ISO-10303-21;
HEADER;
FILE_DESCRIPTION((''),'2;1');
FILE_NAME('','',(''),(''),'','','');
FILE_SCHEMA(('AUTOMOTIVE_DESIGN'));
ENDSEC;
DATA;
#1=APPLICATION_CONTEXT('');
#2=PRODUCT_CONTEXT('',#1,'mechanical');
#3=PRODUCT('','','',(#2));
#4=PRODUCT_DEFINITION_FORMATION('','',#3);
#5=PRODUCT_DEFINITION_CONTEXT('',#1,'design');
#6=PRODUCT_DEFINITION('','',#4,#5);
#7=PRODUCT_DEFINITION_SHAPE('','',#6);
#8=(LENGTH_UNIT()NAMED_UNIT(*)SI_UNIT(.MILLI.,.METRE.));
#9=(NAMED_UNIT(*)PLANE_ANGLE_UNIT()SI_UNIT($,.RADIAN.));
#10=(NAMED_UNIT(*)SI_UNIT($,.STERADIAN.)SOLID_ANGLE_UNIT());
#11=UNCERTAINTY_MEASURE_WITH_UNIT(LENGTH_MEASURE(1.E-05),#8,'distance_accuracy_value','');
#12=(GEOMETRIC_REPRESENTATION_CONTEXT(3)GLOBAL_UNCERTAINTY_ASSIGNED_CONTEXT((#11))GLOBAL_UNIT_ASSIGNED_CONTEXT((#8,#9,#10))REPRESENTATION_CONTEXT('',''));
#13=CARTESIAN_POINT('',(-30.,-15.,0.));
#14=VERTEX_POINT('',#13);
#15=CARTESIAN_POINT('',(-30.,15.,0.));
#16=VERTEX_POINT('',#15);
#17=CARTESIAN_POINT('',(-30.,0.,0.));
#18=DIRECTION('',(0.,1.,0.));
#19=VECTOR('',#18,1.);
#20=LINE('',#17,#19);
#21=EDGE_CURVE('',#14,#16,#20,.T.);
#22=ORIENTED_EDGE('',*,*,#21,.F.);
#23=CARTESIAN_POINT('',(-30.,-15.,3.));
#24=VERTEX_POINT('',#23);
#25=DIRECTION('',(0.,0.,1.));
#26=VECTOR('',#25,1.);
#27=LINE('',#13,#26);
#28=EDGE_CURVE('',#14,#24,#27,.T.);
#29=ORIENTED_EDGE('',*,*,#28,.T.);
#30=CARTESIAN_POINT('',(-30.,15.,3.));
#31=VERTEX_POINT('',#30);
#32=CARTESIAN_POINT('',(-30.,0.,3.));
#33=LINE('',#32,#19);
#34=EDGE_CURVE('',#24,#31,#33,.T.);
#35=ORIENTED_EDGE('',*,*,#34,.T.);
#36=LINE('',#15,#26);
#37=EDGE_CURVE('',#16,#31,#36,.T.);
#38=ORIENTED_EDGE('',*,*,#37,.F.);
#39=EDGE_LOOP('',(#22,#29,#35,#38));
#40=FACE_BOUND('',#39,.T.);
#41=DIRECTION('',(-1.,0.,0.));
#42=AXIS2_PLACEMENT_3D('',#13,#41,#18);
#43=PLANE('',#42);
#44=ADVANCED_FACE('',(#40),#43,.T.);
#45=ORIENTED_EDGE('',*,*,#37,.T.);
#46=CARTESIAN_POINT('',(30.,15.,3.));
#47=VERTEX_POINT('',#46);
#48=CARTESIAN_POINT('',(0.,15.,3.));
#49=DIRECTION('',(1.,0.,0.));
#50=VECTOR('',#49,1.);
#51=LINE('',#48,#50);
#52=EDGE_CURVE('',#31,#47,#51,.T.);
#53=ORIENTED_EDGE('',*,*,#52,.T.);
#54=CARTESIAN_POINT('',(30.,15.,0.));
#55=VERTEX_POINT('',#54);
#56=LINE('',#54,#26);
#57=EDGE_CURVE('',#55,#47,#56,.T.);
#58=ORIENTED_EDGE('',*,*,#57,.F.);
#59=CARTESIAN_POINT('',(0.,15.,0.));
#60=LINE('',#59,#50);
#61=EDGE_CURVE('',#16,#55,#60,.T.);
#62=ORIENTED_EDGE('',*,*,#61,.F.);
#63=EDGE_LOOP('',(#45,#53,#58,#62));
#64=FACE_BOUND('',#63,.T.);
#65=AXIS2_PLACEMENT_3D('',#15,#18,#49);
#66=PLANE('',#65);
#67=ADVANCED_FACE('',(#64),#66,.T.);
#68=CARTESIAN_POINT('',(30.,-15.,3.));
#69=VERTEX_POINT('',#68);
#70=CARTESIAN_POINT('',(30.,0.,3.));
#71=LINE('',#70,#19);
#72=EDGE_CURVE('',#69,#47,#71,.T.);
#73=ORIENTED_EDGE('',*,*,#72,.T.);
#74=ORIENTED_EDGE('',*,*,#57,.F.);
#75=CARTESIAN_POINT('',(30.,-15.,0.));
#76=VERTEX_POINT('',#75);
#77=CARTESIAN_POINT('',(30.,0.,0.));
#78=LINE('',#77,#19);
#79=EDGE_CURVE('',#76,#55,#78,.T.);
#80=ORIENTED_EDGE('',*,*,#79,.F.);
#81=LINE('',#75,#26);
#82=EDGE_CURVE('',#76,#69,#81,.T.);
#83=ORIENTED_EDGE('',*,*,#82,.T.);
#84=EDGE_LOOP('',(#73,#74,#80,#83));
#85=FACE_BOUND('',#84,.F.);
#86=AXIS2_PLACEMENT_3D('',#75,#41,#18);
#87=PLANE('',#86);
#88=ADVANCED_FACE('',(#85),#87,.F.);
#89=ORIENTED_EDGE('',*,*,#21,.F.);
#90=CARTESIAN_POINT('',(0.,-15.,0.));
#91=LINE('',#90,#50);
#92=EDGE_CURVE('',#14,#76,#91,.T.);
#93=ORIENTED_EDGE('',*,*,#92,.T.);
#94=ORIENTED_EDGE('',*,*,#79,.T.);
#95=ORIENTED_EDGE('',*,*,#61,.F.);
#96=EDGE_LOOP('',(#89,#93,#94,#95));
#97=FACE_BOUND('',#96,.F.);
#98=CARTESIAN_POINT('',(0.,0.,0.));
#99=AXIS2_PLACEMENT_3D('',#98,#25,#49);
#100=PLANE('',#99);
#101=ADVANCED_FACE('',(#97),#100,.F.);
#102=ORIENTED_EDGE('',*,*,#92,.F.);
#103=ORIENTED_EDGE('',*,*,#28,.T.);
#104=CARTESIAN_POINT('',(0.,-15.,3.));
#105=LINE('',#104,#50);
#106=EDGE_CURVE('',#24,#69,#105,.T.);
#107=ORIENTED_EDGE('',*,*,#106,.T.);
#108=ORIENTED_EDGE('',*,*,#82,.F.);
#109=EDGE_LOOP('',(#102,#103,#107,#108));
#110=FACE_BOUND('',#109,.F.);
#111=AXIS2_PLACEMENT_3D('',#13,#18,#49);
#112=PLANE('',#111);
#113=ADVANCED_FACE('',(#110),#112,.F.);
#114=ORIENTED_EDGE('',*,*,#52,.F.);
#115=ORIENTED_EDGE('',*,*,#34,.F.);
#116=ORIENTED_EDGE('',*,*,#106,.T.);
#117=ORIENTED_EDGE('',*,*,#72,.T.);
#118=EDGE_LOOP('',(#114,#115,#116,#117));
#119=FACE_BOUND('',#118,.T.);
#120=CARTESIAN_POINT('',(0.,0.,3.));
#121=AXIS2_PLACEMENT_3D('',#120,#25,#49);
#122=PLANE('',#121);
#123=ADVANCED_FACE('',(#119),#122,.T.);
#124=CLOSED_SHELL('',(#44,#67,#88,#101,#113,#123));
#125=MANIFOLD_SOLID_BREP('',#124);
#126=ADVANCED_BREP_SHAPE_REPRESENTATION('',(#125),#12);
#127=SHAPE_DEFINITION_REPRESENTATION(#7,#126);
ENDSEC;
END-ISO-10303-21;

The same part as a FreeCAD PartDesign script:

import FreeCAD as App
import Part
import Sketcher
from FreeCAD import Vector
Q = App.Units.Quantity


def add_polygon(sketch, points):
    """Adds a closed chain of lines whose ends are joined by coincident constraints."""
    first, n = sketch.GeometryCount, len(points)
    for a, b in zip(points, points[1:] + points[:1]):
        sketch.addGeometry(Part.LineSegment(App.Vector(*a, 0), App.Vector(*b, 0)), False)
    for i in range(n):
        sketch.addConstraint(Sketcher.Constraint("Coincident", first + i, 2, first + (i + 1) % n, 1))

doc = App.newDocument("Part")
body = doc.addObject("PartDesign::Body", "Body")

sketch1 = body.newObject("Sketcher::SketchObject", "Sketch")
sketch1.AttachmentSupport = (doc.getObject("XY_Plane"), [""])
sketch1.MapMode = "FlatFace"
add_polygon(sketch1, [(-30, 15), (-30, -15), (30, -15), (30, 15)])
sketch1.addConstraint([
    Sketcher.Constraint("Vertical", 0),
    Sketcher.Constraint("Horizontal", 1),
    Sketcher.Constraint("Vertical", 2),
    Sketcher.Constraint("Horizontal", 3),
    Sketcher.Constraint("Symmetric", 0, 2, 2, 2, -1, 1),
    Sketcher.Constraint("DistanceX", 1, 1, 1, 2, Q("60 mm")),
    Sketcher.Constraint("DistanceY", 0, 2, 0, 1, Q("30 mm")),
])
pad1 = body.newObject("PartDesign::Pad", "Pad")
pad1.Profile = sketch1
pad1.Length = 3

doc.recompute()
